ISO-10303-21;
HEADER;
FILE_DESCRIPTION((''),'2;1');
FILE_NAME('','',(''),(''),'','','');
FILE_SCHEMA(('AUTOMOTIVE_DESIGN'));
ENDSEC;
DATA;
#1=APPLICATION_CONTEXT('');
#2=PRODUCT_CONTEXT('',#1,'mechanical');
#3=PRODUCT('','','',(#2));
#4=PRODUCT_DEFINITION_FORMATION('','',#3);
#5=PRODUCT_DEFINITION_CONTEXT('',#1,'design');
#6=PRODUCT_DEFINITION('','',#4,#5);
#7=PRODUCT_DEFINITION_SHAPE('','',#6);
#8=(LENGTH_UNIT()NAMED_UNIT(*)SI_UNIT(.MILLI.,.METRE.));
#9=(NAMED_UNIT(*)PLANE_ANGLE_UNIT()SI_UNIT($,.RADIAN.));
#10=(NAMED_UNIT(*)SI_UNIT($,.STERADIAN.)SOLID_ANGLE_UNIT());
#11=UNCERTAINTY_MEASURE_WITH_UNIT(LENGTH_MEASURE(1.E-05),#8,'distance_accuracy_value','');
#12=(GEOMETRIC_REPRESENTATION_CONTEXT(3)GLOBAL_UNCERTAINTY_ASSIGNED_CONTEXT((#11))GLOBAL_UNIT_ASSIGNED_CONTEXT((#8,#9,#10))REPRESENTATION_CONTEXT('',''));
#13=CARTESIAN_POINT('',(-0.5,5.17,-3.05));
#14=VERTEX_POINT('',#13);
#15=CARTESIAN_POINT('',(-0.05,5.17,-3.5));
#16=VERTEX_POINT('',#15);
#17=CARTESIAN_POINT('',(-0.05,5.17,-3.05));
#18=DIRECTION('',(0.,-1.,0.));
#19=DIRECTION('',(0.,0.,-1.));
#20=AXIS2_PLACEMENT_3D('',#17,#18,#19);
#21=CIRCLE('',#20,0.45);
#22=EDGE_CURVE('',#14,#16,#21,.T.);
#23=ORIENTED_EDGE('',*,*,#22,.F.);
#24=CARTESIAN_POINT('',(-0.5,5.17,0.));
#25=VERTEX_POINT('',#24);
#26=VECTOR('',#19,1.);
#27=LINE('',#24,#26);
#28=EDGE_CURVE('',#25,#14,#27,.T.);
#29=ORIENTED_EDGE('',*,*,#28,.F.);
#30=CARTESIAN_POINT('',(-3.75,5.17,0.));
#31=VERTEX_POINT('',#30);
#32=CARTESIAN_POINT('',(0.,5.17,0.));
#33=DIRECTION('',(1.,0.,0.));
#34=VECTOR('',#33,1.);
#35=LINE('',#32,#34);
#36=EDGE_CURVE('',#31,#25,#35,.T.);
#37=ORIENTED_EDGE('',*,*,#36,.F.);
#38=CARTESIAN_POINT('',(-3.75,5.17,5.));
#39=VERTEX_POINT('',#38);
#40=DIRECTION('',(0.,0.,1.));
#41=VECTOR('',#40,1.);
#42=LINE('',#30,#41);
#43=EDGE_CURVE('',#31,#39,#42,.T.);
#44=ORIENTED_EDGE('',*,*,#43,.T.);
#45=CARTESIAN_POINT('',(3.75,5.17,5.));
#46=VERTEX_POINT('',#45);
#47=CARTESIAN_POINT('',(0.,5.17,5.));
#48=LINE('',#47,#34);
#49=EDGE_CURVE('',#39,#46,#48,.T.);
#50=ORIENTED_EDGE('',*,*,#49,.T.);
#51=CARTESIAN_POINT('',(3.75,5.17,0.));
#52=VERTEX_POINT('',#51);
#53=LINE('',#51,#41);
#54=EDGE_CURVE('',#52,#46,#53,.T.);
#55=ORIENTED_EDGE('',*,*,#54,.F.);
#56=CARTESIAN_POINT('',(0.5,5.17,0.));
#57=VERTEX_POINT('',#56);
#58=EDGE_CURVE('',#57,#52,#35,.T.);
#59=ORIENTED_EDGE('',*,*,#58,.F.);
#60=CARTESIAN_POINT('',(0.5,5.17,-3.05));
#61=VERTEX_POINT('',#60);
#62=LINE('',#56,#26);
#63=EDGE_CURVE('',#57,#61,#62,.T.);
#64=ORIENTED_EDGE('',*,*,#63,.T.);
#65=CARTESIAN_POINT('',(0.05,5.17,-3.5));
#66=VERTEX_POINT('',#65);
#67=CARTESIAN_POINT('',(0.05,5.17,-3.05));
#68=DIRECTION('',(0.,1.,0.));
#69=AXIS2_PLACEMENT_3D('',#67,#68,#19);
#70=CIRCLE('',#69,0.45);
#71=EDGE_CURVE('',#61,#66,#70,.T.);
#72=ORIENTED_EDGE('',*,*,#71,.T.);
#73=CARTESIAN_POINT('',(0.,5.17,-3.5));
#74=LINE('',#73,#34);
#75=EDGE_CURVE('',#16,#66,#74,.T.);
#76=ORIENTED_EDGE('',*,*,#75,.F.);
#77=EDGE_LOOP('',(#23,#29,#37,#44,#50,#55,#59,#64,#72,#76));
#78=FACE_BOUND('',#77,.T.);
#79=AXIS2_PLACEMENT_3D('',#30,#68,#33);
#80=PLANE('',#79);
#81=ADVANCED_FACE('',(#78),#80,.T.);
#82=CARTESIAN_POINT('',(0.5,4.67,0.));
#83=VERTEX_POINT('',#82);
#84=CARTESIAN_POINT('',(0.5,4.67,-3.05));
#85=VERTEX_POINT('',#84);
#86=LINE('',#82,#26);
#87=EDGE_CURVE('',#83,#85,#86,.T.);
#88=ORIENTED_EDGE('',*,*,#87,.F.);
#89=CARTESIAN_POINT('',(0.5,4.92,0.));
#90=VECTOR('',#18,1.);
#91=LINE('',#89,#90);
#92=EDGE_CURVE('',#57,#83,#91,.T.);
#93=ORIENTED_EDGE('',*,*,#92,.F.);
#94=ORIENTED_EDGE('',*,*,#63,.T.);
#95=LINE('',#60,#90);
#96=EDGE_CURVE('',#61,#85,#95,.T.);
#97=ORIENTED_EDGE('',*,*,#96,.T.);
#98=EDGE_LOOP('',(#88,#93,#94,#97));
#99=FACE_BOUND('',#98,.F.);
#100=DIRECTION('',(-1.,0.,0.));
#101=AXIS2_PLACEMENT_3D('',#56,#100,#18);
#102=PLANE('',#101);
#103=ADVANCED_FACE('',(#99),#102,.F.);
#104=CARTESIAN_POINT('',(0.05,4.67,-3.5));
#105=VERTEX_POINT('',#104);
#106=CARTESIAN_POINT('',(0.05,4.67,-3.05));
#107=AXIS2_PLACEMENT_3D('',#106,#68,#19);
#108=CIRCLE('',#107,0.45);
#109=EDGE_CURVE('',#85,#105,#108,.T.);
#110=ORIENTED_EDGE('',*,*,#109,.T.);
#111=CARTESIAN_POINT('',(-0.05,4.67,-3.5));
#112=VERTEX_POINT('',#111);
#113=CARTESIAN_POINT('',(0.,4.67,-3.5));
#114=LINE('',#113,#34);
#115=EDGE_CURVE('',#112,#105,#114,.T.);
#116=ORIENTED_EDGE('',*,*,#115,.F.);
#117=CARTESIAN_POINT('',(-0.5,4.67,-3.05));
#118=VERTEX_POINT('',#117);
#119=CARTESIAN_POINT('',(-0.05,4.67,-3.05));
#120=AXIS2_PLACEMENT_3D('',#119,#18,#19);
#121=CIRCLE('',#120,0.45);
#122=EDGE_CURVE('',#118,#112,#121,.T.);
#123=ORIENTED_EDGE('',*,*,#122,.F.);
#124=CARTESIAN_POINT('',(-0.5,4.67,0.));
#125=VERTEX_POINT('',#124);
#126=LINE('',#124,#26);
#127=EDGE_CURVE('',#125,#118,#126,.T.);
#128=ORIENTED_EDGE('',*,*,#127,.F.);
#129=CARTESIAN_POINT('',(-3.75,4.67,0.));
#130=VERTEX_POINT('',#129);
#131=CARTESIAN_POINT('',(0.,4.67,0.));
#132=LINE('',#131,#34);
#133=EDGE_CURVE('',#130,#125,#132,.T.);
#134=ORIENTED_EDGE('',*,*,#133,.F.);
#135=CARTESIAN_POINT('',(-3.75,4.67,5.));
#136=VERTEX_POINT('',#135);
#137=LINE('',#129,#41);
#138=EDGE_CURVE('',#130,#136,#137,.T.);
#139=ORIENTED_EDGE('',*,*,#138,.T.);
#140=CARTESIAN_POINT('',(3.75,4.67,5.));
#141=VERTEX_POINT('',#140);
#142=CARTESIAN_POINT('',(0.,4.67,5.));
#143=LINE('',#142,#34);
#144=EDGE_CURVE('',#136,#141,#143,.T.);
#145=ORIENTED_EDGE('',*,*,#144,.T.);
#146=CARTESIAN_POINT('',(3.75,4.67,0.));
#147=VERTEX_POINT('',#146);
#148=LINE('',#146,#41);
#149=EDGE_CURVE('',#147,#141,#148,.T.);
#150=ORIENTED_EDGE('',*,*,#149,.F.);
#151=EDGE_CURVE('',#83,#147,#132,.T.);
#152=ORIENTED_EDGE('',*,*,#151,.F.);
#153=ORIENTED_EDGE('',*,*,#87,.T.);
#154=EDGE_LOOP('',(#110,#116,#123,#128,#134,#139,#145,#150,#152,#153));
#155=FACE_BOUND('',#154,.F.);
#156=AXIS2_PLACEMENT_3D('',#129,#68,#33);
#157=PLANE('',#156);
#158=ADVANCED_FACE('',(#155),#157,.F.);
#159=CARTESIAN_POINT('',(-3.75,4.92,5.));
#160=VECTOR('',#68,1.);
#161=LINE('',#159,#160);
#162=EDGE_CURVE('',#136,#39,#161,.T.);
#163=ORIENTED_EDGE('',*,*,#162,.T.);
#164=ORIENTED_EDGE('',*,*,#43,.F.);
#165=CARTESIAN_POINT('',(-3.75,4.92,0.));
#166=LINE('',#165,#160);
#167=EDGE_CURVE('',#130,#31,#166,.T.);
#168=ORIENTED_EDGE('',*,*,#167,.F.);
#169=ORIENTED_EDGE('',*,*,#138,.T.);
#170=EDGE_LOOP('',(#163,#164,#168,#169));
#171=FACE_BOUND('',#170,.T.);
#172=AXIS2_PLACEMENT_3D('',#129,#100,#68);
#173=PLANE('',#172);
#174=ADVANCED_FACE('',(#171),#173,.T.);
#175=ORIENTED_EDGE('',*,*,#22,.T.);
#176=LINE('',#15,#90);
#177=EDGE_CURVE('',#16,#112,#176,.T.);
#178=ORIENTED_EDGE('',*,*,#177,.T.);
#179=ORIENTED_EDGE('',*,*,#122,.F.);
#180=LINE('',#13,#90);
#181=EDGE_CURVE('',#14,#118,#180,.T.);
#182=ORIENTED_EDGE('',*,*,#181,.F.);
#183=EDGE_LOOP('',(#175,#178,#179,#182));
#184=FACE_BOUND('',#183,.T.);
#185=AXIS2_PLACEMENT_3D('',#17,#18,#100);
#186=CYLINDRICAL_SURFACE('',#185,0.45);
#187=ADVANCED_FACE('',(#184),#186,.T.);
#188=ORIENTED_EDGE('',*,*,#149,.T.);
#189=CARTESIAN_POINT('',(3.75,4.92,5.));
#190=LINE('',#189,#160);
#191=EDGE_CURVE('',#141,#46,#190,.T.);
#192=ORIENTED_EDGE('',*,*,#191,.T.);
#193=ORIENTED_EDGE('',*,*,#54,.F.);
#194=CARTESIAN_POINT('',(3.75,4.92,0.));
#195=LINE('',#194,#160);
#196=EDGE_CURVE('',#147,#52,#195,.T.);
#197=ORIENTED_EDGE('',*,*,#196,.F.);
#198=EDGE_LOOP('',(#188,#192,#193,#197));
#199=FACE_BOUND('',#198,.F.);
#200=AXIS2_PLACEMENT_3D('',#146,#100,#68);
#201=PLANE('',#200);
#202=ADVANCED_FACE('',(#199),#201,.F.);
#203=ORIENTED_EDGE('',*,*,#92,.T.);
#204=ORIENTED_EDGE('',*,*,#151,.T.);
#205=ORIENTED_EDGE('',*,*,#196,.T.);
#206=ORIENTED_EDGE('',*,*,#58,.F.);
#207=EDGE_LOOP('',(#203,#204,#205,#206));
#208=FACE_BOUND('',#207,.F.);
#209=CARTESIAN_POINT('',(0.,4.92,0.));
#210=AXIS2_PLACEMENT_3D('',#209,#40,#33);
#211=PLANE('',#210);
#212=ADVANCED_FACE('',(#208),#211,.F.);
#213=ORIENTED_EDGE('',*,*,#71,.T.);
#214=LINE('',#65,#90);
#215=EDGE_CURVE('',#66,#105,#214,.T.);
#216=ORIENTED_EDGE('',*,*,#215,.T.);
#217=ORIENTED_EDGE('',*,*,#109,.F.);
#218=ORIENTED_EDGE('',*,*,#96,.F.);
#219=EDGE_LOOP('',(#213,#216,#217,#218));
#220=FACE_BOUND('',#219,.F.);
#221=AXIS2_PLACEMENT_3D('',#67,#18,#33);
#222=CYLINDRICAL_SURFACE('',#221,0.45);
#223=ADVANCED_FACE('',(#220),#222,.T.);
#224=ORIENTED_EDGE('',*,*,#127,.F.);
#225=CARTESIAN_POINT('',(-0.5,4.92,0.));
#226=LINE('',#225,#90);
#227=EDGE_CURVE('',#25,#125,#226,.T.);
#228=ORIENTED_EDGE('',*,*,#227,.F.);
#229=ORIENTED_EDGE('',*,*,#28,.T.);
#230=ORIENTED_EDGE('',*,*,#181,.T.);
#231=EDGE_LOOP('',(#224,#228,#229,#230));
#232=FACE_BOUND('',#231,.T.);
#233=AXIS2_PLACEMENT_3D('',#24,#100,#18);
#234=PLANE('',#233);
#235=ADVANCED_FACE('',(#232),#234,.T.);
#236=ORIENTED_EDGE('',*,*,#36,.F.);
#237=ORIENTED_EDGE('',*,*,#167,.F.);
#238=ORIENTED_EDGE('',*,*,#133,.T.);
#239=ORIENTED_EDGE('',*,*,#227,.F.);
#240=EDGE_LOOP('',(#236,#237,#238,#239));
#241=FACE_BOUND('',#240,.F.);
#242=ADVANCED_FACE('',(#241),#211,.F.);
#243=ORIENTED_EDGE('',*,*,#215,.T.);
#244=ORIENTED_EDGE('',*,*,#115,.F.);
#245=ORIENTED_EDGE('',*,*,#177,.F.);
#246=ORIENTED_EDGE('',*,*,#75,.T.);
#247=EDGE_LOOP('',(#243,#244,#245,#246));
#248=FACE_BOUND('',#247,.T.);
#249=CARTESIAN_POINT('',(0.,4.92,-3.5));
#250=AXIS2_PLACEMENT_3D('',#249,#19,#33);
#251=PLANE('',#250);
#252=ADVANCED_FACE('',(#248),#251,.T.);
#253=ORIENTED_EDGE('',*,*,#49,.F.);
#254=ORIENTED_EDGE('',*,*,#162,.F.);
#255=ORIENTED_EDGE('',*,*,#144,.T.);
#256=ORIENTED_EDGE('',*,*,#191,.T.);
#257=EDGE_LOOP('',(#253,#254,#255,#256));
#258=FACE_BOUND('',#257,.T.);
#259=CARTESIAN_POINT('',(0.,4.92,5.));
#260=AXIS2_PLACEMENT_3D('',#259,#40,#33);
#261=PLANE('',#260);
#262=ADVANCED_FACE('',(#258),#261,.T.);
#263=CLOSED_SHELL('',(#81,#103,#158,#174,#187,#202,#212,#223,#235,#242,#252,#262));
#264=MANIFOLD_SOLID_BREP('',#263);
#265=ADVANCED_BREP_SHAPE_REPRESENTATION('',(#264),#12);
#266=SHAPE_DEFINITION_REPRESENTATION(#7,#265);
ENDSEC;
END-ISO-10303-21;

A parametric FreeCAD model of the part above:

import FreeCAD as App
import Part
import Sketcher


def edges_at(feature, points):
    """Names of the edges that pass closest to the given points."""
    edges = feature.Shape.Edges
    near = lambda p: min(range(len(edges)), key=lambda i: edges[i].distToShape(Part.Vertex(*p))[0])
    return sorted({f"Edge{near(p) + 1}" for p in points})


def add_polygon(sketch, points):
    """Adds a closed chain of lines whose ends are joined by coincident constraints."""
    first, n = sketch.GeometryCount, len(points)
    for a, b in zip(points, points[1:] + points[:1]):
        sketch.addGeometry(Part.LineSegment(App.Vector(*a, 0), App.Vector(*b, 0)), False)
    for i in range(n):
        sketch.addConstraint(Sketcher.Constraint("Coincident", first + i, 2, first + (i + 1) % n, 1))

doc = App.newDocument("Part")
params = doc.addObject("Spreadsheet::Sheet", "Params")
for row, (alias, value) in enumerate([
    ("sketch1_width", "7.5 mm"),
    ("sketch1_height", "0.5 mm"),
    ("pad1_length", "5 mm"),
    ("sketch2_width", "1 mm"),
    ("sketch2_height", "0.5 mm"),
    ("pad2_length", "3.5 mm"),
    ("fillet_radius", "0.45 mm"),
], start=1):
    params.set(f"A{row}", alias)
    params.set(f"B{row}", "=" + value)
    params.setAlias(f"B{row}", alias)

body = doc.addObject("PartDesign::Body", "Body")

sketch1 = body.newObject("Sketcher::SketchObject", "Sketch")
sketch1.AttachmentSupport = (doc.getObject("XY_Plane"), [""])
sketch1.MapMode = "FlatFace"
add_polygon(sketch1, [(-3.8, 5.2), (-3.8, 4.7), (3.8, 4.7), (3.8, 5.2)])
sketch1.addConstraint([
    Sketcher.Constraint("Vertical", 0),
    Sketcher.Constraint("Horizontal", 1),
    Sketcher.Constraint("Vertical", 2),
    Sketcher.Constraint("Horizontal", 3),
    Sketcher.Constraint("DistanceX", 1, 1, 1, 2, 7.5),
    Sketcher.Constraint("DistanceY", 0, 2, 0, 1, 0.5),
    Sketcher.Constraint("DistanceX", 0, 2, -1, 1, 3.75),
    Sketcher.Constraint("DistanceY", -1, 1, 0, 2, 4.67),
])
sketch1.setExpression("Constraints[8]", "Params.sketch1_width")
sketch1.setExpression("Constraints[9]", "Params.sketch1_height")
pad1 = body.newObject("PartDesign::Pad", "Pad")
pad1.Profile = sketch1
pad1.setExpression("Length", "Params.pad1_length")

sketch2 = body.newObject("Sketcher::SketchObject", "Sketch001")
sketch2.AttachmentSupport = (doc.getObject("XY_Plane"), [""])
sketch2.MapMode = "FlatFace"
add_polygon(sketch2, [(-0.5, 4.7), (-0.5, 5.2), (0.5, 5.2), (0.5, 4.7)])
sketch2.addConstraint([
    Sketcher.Constraint("Vertical", 0),
    Sketcher.Constraint("Horizontal", 1),
    Sketcher.Constraint("Vertical", 2),
    Sketcher.Constraint("Horizontal", 3),
    Sketcher.Constraint("DistanceX", 1, 1, 1, 2, 1.0),
    Sketcher.Constraint("DistanceY", 0, 1, 0, 2, 0.5),
    Sketcher.Constraint("DistanceX", 0, 2, -1, 1, 0.5),
    Sketcher.Constraint("DistanceY", -1, 1, 0, 2, 5.17),
])
sketch2.setExpression("Constraints[8]", "Params.sketch2_width")
sketch2.setExpression("Constraints[9]", "Params.sketch2_height")
pad2 = body.newObject("PartDesign::Pad", "Pad001")
pad2.Profile = sketch2
pad2.setExpression("Length", "Params.pad2_length")
pad2.Reversed = True
doc.recompute()

fillet = body.newObject("PartDesign::Fillet", "Fillet")
fillet.Base = (pad2, edges_at(pad2, [(0.5, 4.92, -3.5), (-0.5, 4.92, -3.5)]))
fillet.setExpression("Radius", "Params.fillet_radius")

doc.recompute()
